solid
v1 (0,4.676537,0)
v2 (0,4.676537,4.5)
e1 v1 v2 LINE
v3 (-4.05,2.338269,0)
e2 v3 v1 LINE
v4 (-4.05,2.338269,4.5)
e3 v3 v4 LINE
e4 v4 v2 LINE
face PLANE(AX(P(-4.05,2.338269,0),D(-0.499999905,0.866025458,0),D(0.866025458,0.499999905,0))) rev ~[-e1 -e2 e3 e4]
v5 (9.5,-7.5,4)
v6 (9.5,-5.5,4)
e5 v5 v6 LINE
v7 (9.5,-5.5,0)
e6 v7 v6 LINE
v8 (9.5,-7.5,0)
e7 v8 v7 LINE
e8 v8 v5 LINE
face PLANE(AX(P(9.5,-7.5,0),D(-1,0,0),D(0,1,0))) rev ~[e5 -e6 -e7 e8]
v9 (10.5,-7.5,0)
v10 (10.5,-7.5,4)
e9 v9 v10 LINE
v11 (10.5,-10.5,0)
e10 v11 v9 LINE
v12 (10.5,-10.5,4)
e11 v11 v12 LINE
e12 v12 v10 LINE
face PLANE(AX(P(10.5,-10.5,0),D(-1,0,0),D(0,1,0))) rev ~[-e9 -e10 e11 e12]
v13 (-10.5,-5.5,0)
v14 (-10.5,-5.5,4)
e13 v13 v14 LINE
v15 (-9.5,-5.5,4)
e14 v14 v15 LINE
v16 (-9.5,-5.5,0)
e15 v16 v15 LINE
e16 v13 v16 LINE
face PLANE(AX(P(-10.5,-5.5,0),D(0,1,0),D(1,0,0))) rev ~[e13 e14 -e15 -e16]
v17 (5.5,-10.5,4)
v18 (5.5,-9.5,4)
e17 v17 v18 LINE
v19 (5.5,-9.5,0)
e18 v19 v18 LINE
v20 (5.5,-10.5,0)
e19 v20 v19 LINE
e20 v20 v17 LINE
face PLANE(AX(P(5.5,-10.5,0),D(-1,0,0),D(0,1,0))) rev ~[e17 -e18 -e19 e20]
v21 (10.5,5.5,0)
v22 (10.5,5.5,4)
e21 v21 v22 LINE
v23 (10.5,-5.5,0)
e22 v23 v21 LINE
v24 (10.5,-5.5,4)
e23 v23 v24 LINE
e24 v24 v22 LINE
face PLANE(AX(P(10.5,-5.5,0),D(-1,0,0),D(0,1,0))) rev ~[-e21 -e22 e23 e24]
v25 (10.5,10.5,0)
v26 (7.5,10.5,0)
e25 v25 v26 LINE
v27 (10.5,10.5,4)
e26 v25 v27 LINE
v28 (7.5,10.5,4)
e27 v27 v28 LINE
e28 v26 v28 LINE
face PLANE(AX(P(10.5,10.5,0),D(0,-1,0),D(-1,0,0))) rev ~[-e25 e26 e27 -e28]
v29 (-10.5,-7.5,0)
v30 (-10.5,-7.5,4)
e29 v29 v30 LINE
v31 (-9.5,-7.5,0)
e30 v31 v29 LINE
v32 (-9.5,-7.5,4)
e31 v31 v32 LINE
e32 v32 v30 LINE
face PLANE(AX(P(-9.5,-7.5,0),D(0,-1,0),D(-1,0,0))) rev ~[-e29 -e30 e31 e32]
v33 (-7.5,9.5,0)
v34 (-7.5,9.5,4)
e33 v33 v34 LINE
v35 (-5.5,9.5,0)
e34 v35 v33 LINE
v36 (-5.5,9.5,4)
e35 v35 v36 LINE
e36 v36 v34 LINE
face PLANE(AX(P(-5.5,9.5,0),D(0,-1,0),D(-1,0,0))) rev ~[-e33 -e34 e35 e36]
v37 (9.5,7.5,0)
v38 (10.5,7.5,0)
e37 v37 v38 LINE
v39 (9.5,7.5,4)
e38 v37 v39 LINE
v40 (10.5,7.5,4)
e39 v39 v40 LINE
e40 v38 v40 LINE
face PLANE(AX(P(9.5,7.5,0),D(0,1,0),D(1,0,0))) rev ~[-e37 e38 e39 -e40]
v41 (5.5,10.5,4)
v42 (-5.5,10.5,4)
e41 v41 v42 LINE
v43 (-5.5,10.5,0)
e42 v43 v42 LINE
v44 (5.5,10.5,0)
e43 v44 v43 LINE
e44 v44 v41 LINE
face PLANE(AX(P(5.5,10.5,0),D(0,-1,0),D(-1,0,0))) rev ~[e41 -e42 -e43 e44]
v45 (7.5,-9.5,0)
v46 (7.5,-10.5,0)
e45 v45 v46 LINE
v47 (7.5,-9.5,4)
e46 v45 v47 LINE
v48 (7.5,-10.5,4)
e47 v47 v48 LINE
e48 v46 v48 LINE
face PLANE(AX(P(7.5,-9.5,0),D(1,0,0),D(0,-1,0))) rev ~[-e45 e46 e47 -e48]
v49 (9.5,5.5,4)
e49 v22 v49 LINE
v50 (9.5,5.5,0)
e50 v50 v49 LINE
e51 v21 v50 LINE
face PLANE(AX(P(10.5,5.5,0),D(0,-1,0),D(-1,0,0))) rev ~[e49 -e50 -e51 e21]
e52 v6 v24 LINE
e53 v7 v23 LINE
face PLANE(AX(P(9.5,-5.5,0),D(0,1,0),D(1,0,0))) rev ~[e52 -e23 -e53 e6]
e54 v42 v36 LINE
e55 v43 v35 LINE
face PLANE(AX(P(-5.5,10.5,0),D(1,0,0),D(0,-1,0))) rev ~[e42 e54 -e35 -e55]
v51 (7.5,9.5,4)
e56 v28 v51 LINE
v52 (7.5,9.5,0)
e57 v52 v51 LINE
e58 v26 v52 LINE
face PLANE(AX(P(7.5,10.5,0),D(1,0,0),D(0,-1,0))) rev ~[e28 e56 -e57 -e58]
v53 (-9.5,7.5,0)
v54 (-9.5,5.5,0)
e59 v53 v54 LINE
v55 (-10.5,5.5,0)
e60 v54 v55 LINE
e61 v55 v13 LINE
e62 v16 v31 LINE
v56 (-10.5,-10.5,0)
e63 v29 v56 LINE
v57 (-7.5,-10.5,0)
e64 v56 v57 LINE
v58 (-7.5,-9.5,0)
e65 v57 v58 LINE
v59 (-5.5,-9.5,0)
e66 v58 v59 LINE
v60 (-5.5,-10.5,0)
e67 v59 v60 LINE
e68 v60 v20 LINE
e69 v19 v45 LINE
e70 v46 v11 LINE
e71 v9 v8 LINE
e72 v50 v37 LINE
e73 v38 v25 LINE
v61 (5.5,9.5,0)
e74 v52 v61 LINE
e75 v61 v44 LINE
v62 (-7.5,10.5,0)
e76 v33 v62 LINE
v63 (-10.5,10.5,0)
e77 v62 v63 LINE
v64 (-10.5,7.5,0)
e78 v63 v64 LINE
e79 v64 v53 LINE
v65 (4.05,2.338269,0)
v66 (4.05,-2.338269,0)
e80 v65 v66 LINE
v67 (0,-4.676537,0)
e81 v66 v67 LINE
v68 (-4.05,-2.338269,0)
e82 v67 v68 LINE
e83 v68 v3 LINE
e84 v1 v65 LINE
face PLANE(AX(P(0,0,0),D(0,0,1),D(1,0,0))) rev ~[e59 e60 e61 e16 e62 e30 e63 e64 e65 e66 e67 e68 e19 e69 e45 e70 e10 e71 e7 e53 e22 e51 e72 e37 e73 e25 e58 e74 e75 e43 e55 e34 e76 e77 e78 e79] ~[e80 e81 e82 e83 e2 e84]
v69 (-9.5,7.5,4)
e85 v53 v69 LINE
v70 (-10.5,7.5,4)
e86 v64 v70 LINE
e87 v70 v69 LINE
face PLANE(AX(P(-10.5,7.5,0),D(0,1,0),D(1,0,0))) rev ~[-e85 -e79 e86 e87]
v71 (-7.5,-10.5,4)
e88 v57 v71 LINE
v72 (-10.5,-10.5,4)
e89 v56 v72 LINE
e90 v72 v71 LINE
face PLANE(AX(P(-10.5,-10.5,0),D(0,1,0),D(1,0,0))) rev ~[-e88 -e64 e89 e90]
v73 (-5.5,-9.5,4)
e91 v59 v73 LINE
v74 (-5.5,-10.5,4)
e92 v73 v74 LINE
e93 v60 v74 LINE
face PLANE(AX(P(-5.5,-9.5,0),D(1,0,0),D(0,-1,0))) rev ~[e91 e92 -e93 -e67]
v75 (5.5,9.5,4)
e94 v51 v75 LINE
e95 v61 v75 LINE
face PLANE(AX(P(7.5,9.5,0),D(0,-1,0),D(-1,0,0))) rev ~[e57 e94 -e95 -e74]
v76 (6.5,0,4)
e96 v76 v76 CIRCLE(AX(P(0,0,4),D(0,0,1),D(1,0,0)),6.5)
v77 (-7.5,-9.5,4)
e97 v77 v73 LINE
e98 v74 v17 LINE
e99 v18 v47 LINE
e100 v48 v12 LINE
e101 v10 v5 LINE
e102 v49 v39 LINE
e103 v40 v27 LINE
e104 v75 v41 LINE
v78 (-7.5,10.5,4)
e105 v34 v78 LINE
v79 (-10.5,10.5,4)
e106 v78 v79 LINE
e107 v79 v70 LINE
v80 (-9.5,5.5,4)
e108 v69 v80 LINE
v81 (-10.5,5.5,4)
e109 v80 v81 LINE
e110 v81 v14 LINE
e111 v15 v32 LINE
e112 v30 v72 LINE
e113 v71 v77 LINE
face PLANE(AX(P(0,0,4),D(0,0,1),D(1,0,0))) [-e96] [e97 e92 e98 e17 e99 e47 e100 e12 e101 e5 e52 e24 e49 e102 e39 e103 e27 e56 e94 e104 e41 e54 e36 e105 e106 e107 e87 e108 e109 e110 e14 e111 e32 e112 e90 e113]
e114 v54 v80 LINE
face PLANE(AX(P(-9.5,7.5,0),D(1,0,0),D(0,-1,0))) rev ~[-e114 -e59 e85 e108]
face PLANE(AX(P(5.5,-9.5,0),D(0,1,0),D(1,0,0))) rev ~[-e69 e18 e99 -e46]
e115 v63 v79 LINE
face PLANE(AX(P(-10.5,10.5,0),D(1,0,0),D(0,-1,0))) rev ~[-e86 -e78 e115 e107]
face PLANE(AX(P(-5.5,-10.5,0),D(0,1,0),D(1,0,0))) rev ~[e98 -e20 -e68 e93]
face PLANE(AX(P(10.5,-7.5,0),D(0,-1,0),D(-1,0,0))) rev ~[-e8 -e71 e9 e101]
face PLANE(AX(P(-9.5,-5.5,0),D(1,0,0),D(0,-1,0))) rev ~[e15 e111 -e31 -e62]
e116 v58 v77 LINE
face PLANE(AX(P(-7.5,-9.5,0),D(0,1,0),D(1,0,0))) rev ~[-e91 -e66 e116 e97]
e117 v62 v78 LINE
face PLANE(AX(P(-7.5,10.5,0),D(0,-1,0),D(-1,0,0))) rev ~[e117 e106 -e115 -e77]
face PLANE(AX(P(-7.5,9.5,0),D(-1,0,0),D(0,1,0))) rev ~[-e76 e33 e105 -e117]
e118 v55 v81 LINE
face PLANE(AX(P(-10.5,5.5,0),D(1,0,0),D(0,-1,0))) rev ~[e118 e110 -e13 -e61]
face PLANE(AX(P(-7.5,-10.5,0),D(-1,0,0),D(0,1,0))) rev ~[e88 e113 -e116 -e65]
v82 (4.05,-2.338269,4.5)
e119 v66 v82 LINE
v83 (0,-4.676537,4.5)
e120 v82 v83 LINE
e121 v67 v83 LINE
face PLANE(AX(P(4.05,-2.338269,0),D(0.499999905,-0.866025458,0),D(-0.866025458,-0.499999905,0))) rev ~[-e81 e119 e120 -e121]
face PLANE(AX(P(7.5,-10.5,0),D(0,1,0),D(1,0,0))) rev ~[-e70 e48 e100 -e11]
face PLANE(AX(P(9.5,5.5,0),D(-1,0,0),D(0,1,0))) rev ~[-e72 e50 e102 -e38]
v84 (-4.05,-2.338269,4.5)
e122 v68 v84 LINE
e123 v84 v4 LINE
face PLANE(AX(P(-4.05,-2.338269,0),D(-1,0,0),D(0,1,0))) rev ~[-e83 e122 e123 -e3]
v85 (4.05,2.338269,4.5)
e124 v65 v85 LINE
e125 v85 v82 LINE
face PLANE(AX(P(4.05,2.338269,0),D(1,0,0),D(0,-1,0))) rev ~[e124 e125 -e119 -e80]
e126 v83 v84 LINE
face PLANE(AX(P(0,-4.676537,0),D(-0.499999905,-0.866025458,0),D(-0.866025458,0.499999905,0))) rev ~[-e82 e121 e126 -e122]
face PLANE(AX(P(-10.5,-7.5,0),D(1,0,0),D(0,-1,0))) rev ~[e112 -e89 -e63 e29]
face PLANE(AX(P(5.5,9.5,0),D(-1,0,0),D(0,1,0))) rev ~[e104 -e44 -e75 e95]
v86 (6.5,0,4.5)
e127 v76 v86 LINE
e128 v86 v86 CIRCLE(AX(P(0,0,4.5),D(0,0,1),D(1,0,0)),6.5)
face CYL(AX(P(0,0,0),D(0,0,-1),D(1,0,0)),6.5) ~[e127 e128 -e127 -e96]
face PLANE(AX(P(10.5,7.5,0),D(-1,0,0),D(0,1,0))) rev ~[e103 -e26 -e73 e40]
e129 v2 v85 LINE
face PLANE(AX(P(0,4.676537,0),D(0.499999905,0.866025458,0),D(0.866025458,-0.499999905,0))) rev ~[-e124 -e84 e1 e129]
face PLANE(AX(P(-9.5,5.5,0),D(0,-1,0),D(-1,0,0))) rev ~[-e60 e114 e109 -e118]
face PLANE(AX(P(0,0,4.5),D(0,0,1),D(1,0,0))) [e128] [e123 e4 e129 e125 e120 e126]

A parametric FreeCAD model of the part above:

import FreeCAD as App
import Part
import Sketcher

V = App.Vector
Q = App.Units.Quantity

doc = App.newDocument("Part")
body = doc.addObject("PartDesign::Body", "Body")

# Sketch on XY plane
sketch1 = body.newObject("Sketcher::SketchObject", "Sketch")
sketch1.AttachmentSupport = (doc.getObject("XY_Plane"), [""])
sketch1.MapMode = "FlatFace"
sketch1.addGeometry([
    Part.LineSegment(V(7.5, -10.5, 0), V(10.5, -10.5, 0)),  # 0
    Part.LineSegment(V(10.5, -10.5, 0), V(10.5, -7.5, 0)),  # 1
    Part.LineSegment(V(10.5, -7.5, 0), V(9.5, -7.5, 0)),  # 2
    Part.LineSegment(V(9.5, -7.5, 0), V(9.5, -5.5, 0)),  # 3
    Part.LineSegment(V(9.5, -5.5, 0), V(10.5, -5.5, 0)),  # 4
    Part.LineSegment(V(10.5, -5.5, 0), V(10.5, 5.5, 0)),  # 5
    Part.LineSegment(V(10.5, 5.5, 0), V(9.5, 5.5, 0)),  # 6
    Part.LineSegment(V(9.5, 5.5, 0), V(9.5, 7.5, 0)),  # 7
    Part.LineSegment(V(9.5, 7.5, 0), V(10.5, 7.5, 0)),  # 8
    Part.LineSegment(V(10.5, 7.5, 0), V(10.5, 10.5, 0)),  # 9
    Part.LineSegment(V(10.5, 10.5, 0), V(7.5, 10.5, 0)),  # 10
    Part.LineSegment(V(7.5, 10.5, 0), V(7.5, 9.5, 0)),  # 11
    Part.LineSegment(V(7.5, 9.5, 0), V(5.5, 9.5, 0)),  # 12
    Part.LineSegment(V(5.5, 9.5, 0), V(5.5, 10.5, 0)),  # 13
    Part.LineSegment(V(5.5, 10.5, 0), V(-5.5, 10.5, 0)),  # 14
    Part.LineSegment(V(-5.5, 10.5, 0), V(-5.5, 9.5, 0)),  # 15
    Part.LineSegment(V(-5.5, 9.5, 0), V(-7.5, 9.5, 0)),  # 16
    Part.LineSegment(V(-7.5, 9.5, 0), V(-7.5, 10.5, 0)),  # 17
    Part.LineSegment(V(-7.5, 10.5, 0), V(-10.5, 10.5, 0)),  # 18
    Part.LineSegment(V(-10.5, 10.5, 0), V(-10.5, 7.5, 0)),  # 19
    Part.LineSegment(V(-10.5, 7.5, 0), V(-9.5, 7.5, 0)),  # 20
    Part.LineSegment(V(-9.5, 7.5, 0), V(-9.5, 5.5, 0)),  # 21
    Part.LineSegment(V(-9.5, 5.5, 0), V(-10.5, 5.5, 0)),  # 22
    Part.LineSegment(V(-10.5, 5.5, 0), V(-10.5, -5.5, 0)),  # 23
    Part.LineSegment(V(-10.5, -5.5, 0), V(-9.5, -5.5, 0)),  # 24
    Part.LineSegment(V(-9.5, -5.5, 0), V(-9.5, -7.5, 0)),  # 25
    Part.LineSegment(V(-9.5, -7.5, 0), V(-10.5, -7.5, 0)),  # 26
    Part.LineSegment(V(-10.5, -7.5, 0), V(-10.5, -10.5, 0)),  # 27
    Part.LineSegment(V(-10.5, -10.5, 0), V(-7.5, -10.5, 0)),  # 28
    Part.LineSegment(V(-7.5, -10.5, 0), V(-7.5, -9.5, 0)),  # 29
    Part.LineSegment(V(-7.5, -9.5, 0), V(-5.5, -9.5, 0)),  # 30
    Part.LineSegment(V(-5.5, -9.5, 0), V(-5.5, -10.5, 0)),  # 31
    Part.LineSegment(V(-5.5, -10.5, 0), V(5.5, -10.5, 0)),  # 32
    Part.LineSegment(V(5.5, -10.5, 0), V(5.5, -9.5, 0)),  # 33
    Part.LineSegment(V(5.5, -9.5, 0), V(7.5, -9.5, 0)),  # 34
    Part.LineSegment(V(7.5, -9.5, 0), V(7.5, -10.5, 0)),  # 35
    Part.Circle(V(0, 0, 0), V(0, 0, 1), 6.5),  # 36
], False)
sketch1.addConstraint([
    Sketcher.Constraint("Coincident", 0, 2, 1, 1),
    Sketcher.Constraint("Coincident", 1, 2, 2, 1),
    Sketcher.Constraint("Coincident", 2, 2, 3, 1),
    Sketcher.Constraint("Coincident", 3, 2, 4, 1),
    Sketcher.Constraint("Coincident", 4, 2, 5, 1),
    Sketcher.Constraint("Coincident", 5, 2, 6, 1),
    Sketcher.Constraint("Coincident", 6, 2, 7, 1),
    Sketcher.Constraint("Coincident", 7, 2, 8, 1),
    Sketcher.Constraint("Coincident", 8, 2, 9, 1),
    Sketcher.Constraint("Coincident", 9, 2, 10, 1),
    Sketcher.Constraint("Coincident", 10, 2, 11, 1),
    Sketcher.Constraint("Coincident", 11, 2, 12, 1),
    Sketcher.Constraint("Coincident", 12, 2, 13, 1),
    Sketcher.Constraint("Coincident", 13, 2, 14, 1),
    Sketcher.Constraint("Coincident", 14, 2, 15, 1),
    Sketcher.Constraint("Coincident", 15, 2, 16, 1),
    Sketcher.Constraint("Coincident", 16, 2, 17, 1),
    Sketcher.Constraint("Coincident", 17, 2, 18, 1),
    Sketcher.Constraint("Coincident", 18, 2, 19, 1),
    Sketcher.Constraint("Coincident", 19, 2, 20, 1),
    Sketcher.Constraint("Coincident", 20, 2, 21, 1),
    Sketcher.Constraint("Coincident", 21, 2, 22, 1),
    Sketcher.Constraint("Coincident", 22, 2, 23, 1),
    Sketcher.Constraint("Coincident", 23, 2, 24, 1),
    Sketcher.Constraint("Coincident", 24, 2, 25, 1),
    Sketcher.Constraint("Coincident", 25, 2, 26, 1),
    Sketcher.Constraint("Coincident", 26, 2, 27, 1),
    Sketcher.Constraint("Coincident", 27, 2, 28, 1),
    Sketcher.Constraint("Coincident", 28, 2, 29, 1),
    Sketcher.Constraint("Coincident", 29, 2, 30, 1),
    Sketcher.Constraint("Coincident", 30, 2, 31, 1),
    Sketcher.Constraint("Coincident", 31, 2, 32, 1),
    Sketcher.Constraint("Coincident", 32, 2, 33, 1),
    Sketcher.Constraint("Coincident", 33, 2, 34, 1),
    Sketcher.Constraint("Coincident", 34, 2, 35, 1),
    Sketcher.Constraint("Coincident", 35, 2, 0, 1),
    Sketcher.Constraint("Horizontal", 0),
    Sketcher.Constraint("Vertical", 1),
    Sketcher.Constraint("Horizontal", 2),
    Sketcher.Constraint("Vertical", 3),
    Sketcher.Constraint("Horizontal", 4),
    Sketcher.Constraint("Vertical", 5),
    Sketcher.Constraint("Horizontal", 6),
    Sketcher.Constraint("Vertical", 7),
    Sketcher.Constraint("Horizontal", 8),
    Sketcher.Constraint("Vertical", 9),
    Sketcher.Constraint("Horizontal", 10),
    Sketcher.Constraint("Vertical", 11),
    Sketcher.Constraint("Horizontal", 12),
    Sketcher.Constraint("Vertical", 13),
    Sketcher.Constraint("Horizontal", 14),
    Sketcher.Constraint("Vertical", 15),
    Sketcher.Constraint("Horizontal", 16),
    Sketcher.Constraint("Vertical", 17),
    Sketcher.Constraint("Horizontal", 18),
    Sketcher.Constraint("Vertical", 19),
    Sketcher.Constraint("Horizontal", 20),
    Sketcher.Constraint("Vertical", 21),
    Sketcher.Constraint("Horizontal", 22),
    Sketcher.Constraint("Vertical", 23),
    Sketcher.Constraint("Horizontal", 24),
    Sketcher.Constraint("Vertical", 25),
    Sketcher.Constraint("Horizontal", 26),
    Sketcher.Constraint("Vertical", 27),
    Sketcher.Constraint("Horizontal", 28),
    Sketcher.Constraint("Vertical", 29),
    Sketcher.Constraint("Horizontal", 30),
    Sketcher.Constraint("Vertical", 31),
    Sketcher.Constraint("Horizontal", 32),
    Sketcher.Constraint("Vertical", 33),
    Sketcher.Constraint("Horizontal", 34),
    Sketcher.Constraint("Vertical", 35),
    Sketcher.Constraint("Coincident", 36, 3, -1, 1),
    Sketcher.Constraint("Symmetric", 0, 2, 18, 2, -1, 1),
    Sketcher.Constraint("Symmetric", 2, 2, 20, 2, -1, 1),
    Sketcher.Constraint("Symmetric", 4, 2, 22, 2, -1, 1),
    Sketcher.Constraint("Symmetric", 6, 2, 24, 2, -1, 1),
    Sketcher.Constraint("Symmetric", 8, 2, 26, 2, -1, 1),
    Sketcher.Constraint("Symmetric", 10, 2, 28, 2, -1, 1),
    Sketcher.Constraint("Symmetric", 12, 2, 30, 2, -1, 1),
    Sketcher.Constraint("Symmetric", 14, 2, 32, 2, -1, 1),
    Sketcher.Constraint("Symmetric", 16, 2, 34, 2, -1, 1),
    Sketcher.Constraint("Symmetric", 12, 2, 15, 2, -2),
    Sketcher.Constraint("Symmetric", 10, 2, 17, 2, -2),
    Sketcher.Constraint("Symmetric", 8, 2, 19, 2, -2),
    Sketcher.Constraint("Symmetric", 6, 2, 21, 2, -2),
    Sketcher.Constraint("Horizontal", 10, 2, 13, 2),
    Sketcher.Constraint("Vertical", 1, 2, 4, 2),
    Sketcher.Constraint("Equal", 28, 1),
    Sketcher.Constraint("Equal", 34, 3),
    Sketcher.Constraint("Equal", 32, 5),
    Sketcher.Constraint("Equal", 26, 11),
    Sketcher.Constraint("Diameter", 36, Q("13 mm")),
    Sketcher.Constraint("DistanceX", 0, 1, 0, 2, Q("3 mm")),
    Sketcher.Constraint("DistanceX", 2, 2, 2, 1, Q("1 mm")),
    Sketcher.Constraint("DistanceX", 12, 2, 12, 1, Q("2 mm")),
    Sketcher.Constraint("DistanceX", 14, 2, 14, 1, Q("11 mm")),
])
pad1 = body.newObject("PartDesign::Pad", "Pad")
pad1.Profile = sketch1
pad1.Length = 4

# Sketch on XY plane
sketch2 = body.newObject("Sketcher::SketchObject", "Sketch001")
sketch2.AttachmentSupport = (doc.getObject("XY_Plane"), [""])
sketch2.MapMode = "FlatFace"
sketch2.addGeometry([
    Part.Circle(V(0, 0, 0), V(0, 0, 1), 6.5),  # 0
    Part.LineSegment(V(0, 4.7, 0), V(4, 2.3, 0)),  # 1
    Part.LineSegment(V(4, 2.3, 0), V(4, -2.3, 0)),  # 2
    Part.LineSegment(V(4, -2.3, 0), V(0, -4.7, 0)),  # 3
    Part.LineSegment(V(0, -4.7, 0), V(-4, -2.3, 0)),  # 4
    Part.LineSegment(V(-4, -2.3, 0), V(-4, 2.3, 0)),  # 5
    Part.LineSegment(V(-4, 2.3, 0), V(0, 4.7, 0)),  # 6
], False)
sketch2.addConstraint([
    Sketcher.Constraint("Coincident", 1, 2, 2, 1),
    Sketcher.Constraint("Coincident", 2, 2, 3, 1),
    Sketcher.Constraint("Coincident", 3, 2, 4, 1),
    Sketcher.Constraint("Coincident", 4, 2, 5, 1),
    Sketcher.Constraint("Coincident", 5, 2, 6, 1),
    Sketcher.Constraint("Coincident", 6, 2, 1, 1),
    Sketcher.Constraint("Vertical", 2),
    Sketcher.Constraint("Vertical", 5),
    Sketcher.Constraint("Coincident", 0, 3, -1, 1),
    Sketcher.Constraint("Symmetric", 1, 2, 4, 2, -1, 1),
    Sketcher.Constraint("Symmetric", 3, 2, 6, 2, -1, 1),
    Sketcher.Constraint("PointOnObject", 3, 2, -2),
    Sketcher.Constraint("Parallel", 3, 6),
    Sketcher.Constraint("Horizontal", 2, 2, 4, 2),
    Sketcher.Constraint("Diameter", 0, Q("13 mm")),
    Sketcher.Constraint("Angle", 1, Q("-29.999994 deg")),
    Sketcher.Constraint("DistanceX", 4, 2, 2, 2, Q("8.1 mm")),
    Sketcher.Constraint("DistanceY", 2, 2, 2, 1, Q("4.676538 mm")),
])
pad2 = body.newObject("PartDesign::Pad", "Pad001")
pad2.Profile = sketch2
pad2.Length = 4.5

doc.recompute()
